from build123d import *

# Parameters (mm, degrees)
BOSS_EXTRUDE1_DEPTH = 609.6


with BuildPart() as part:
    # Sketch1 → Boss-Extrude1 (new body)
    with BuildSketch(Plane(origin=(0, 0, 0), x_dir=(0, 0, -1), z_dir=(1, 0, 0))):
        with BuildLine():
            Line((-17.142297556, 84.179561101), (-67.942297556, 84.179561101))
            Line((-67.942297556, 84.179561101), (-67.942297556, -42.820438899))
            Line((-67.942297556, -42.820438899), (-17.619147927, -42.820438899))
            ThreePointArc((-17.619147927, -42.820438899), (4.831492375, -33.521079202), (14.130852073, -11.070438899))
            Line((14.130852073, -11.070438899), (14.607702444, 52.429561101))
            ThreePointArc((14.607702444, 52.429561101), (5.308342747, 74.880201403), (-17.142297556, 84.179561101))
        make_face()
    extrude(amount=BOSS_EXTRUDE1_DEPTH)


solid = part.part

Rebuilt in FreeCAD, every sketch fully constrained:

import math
import FreeCAD as App
import Part
import Sketcher
Q = App.Units.Quantity

doc = App.newDocument("Part")
body = doc.addObject("PartDesign::Body", "Body")

sketch1 = body.newObject("Sketcher::SketchObject", "Sketch")
sketch1.AttachmentSupport = (doc.getObject("YZ_Plane"), [""])
sketch1.MapMode = "FlatFace"
sketch1.addGeometry([
    Part.LineSegment(App.Vector(84.179561, 17.142298, 0), App.Vector(84.179561, 67.942298, 0)),
    Part.LineSegment(App.Vector(84.179561, 67.942298, 0), App.Vector(-42.820439, 67.942298, 0)),
    Part.LineSegment(App.Vector(-42.820439, 67.942298, 0), App.Vector(-42.820439, 17.619148, 0)),
    Part.ArcOfCircle(Part.Circle(App.Vector(-11.070439, 17.619148, 0), App.Vector(0, 0, 1), 31.75), math.radians(-180), math.radians(-90)),
    Part.LineSegment(App.Vector(-11.070439, -14.130852, 0), App.Vector(52.429561, -14.607702, 0)),
    Part.ArcOfCircle(Part.Circle(App.Vector(52.429561, 17.142298, 0), App.Vector(0, 0, 1), 31.75), math.radians(-90), math.radians(0)),
], False)
sketch1.addConstraint([
    Sketcher.Constraint("Coincident", 0, 2, 1, 1),
    Sketcher.Constraint("Coincident", 1, 2, 2, 1),
    Sketcher.Constraint("Tangent", 2, 2, 3, 1),
    Sketcher.Constraint("Coincident", 3, 2, 4, 1),
    Sketcher.Constraint("Coincident", 4, 2, 5, 1),
    Sketcher.Constraint("Tangent", 5, 2, 0, 1),
    Sketcher.Constraint("Vertical", 0),
    Sketcher.Constraint("Horizontal", 1),
    Sketcher.Constraint("Vertical", 2),
    Sketcher.Constraint("Equal", 3, 5),
    Sketcher.Constraint("Vertical", 5, 3, 4, 2),
    Sketcher.Constraint("DistanceX", 1, 2, 1, 1, Q("5 in")),
    Sketcher.Constraint("DistanceY", 0, 1, 0, 2, Q("2 in")),
    Sketcher.Constraint("Radius", 3, Q("1.25 in")),
    Sketcher.Constraint("DistanceX", 3, 2, 5, 3, Q("2.5 in")),
    Sketcher.Constraint("DistanceY", 2, 2, 2, 1, 50.32315),
    Sketcher.Constraint("DistanceX", 3, 3, -1, 1, 11.070439),
    Sketcher.Constraint("DistanceY", -1, 1, 3, 3, 17.619148),
])
pad1 = body.newObject("PartDesign::Pad", "Pad")
pad1.Profile = sketch1
pad1.Length = Q("24 in")

doc.recompute()
